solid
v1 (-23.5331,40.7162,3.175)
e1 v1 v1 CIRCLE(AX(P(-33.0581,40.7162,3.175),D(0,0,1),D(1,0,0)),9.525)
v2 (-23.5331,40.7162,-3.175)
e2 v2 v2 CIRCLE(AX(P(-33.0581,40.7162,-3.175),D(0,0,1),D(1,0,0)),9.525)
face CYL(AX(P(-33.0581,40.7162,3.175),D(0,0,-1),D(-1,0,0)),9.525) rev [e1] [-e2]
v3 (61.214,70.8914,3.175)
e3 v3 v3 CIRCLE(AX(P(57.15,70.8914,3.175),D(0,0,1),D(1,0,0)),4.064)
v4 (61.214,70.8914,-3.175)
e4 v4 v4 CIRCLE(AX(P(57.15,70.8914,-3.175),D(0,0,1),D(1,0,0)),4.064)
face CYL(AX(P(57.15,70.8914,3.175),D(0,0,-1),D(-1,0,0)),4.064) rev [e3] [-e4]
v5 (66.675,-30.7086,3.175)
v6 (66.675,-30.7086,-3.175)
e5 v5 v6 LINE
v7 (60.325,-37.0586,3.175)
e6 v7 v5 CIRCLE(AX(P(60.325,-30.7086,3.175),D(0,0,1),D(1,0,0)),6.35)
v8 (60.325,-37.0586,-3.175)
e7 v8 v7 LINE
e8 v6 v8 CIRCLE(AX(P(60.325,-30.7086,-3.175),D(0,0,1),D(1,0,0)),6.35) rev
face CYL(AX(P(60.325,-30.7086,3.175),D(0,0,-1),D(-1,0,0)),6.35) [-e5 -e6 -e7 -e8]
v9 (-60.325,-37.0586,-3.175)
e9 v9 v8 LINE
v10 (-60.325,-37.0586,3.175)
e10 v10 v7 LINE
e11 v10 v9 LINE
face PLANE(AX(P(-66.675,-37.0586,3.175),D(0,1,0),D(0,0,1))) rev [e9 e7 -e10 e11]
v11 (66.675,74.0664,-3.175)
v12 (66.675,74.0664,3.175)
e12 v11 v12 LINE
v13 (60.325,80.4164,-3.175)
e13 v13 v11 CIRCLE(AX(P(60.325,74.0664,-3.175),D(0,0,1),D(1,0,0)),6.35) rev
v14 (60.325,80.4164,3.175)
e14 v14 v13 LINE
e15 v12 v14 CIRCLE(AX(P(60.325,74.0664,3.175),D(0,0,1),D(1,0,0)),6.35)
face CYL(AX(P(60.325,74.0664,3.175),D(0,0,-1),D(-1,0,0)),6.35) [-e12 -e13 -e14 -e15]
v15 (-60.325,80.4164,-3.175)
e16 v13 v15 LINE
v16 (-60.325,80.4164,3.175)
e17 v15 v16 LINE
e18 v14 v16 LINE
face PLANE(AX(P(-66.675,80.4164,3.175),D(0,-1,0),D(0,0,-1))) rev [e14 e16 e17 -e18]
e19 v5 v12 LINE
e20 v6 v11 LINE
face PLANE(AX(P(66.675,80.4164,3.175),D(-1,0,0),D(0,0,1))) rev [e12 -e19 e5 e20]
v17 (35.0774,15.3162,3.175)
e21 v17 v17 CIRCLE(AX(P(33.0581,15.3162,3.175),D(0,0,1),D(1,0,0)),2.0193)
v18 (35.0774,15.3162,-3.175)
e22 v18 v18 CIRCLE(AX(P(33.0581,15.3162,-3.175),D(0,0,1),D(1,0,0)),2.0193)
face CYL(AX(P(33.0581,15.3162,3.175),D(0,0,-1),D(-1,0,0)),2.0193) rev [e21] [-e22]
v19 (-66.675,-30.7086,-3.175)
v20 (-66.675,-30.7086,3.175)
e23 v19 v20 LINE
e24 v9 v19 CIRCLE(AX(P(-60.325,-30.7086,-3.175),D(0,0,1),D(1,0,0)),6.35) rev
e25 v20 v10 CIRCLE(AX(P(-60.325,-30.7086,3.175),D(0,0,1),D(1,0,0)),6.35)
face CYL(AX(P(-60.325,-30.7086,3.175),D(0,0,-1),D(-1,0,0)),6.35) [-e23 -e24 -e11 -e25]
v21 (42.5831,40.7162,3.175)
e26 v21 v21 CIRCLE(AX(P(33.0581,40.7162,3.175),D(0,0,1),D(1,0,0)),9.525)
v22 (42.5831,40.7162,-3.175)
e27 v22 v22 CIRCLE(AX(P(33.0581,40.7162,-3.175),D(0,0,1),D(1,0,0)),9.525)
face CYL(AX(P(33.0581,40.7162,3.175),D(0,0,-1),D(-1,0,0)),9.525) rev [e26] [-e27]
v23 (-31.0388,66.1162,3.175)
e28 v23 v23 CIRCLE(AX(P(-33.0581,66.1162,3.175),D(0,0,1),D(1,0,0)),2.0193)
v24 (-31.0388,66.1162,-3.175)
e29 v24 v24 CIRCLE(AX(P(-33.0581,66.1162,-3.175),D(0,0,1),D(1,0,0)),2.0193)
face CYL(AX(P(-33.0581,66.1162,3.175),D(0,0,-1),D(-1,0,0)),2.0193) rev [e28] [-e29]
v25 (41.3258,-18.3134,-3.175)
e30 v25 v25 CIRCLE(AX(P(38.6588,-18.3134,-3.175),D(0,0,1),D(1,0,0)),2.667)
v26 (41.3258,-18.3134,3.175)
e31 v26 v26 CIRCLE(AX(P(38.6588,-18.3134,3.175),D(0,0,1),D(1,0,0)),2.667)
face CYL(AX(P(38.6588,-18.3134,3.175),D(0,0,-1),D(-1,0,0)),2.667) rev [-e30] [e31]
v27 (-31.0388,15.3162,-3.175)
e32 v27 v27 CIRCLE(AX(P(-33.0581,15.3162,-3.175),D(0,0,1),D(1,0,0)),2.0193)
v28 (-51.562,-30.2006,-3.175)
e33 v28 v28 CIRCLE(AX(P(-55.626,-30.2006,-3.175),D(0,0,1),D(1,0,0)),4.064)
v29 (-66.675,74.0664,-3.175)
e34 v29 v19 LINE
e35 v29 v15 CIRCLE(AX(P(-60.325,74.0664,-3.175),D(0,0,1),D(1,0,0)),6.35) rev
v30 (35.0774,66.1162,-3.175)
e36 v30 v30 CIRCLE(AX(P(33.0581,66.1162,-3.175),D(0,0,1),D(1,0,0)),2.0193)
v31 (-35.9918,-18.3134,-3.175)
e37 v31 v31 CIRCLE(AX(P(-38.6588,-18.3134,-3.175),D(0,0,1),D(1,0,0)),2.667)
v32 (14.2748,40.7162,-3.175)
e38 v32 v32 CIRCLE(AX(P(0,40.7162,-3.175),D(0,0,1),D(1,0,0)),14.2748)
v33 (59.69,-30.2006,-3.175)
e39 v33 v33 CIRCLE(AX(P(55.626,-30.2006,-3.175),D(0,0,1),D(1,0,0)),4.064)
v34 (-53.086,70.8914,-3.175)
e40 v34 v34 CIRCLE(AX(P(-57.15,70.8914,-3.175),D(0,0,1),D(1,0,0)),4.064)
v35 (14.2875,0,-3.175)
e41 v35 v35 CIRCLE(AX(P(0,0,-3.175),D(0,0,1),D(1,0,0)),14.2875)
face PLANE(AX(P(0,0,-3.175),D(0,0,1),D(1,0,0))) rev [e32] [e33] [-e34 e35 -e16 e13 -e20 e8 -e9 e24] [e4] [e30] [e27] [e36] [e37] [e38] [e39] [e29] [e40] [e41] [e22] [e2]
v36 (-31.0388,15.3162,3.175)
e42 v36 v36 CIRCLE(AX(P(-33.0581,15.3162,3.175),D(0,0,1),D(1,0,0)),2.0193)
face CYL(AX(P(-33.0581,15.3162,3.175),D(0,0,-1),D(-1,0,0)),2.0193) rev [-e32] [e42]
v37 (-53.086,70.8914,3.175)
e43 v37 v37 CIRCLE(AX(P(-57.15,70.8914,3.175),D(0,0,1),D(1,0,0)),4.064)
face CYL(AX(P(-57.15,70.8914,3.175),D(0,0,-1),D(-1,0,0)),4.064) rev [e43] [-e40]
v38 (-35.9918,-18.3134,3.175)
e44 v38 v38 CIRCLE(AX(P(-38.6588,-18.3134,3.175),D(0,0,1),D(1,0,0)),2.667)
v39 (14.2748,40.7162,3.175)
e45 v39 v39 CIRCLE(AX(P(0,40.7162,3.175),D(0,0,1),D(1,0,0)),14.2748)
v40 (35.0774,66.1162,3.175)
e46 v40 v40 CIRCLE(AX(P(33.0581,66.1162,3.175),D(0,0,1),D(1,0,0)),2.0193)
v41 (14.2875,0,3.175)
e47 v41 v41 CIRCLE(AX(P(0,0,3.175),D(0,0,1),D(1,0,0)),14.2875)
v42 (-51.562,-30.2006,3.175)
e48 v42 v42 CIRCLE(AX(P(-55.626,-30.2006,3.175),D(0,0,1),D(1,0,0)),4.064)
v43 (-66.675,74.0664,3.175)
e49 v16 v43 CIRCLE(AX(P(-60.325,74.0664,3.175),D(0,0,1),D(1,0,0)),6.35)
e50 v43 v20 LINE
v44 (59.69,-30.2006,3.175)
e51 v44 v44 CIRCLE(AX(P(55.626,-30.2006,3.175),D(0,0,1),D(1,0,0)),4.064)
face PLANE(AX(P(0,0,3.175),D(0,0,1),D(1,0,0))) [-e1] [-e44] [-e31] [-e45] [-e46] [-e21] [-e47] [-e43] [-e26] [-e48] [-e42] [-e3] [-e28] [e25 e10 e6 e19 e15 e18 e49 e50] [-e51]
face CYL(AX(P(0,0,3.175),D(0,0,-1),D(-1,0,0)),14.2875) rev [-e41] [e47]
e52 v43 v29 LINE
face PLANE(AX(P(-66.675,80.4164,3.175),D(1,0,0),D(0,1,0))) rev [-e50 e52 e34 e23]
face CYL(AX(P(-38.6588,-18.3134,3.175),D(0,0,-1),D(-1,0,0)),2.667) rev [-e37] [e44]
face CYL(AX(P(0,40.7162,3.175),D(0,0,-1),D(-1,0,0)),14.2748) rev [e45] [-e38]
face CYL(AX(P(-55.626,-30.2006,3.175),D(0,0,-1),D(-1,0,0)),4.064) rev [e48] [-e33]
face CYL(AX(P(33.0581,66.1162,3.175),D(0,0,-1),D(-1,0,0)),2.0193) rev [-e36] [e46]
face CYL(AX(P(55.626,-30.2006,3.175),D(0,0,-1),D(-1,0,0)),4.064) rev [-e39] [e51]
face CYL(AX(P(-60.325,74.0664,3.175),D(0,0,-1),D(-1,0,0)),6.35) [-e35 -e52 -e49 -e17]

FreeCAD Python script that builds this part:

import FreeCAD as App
import Part
import Sketcher
Q = App.Units.Quantity


def edges_at(feature, points):
    """Names of the edges that pass closest to the given points."""
    edges = feature.Shape.Edges
    near = lambda p: min(range(len(edges)), key=lambda i: edges[i].distToShape(Part.Vertex(*p))[0])
    return sorted({f"Edge{near(p) + 1}" for p in points})

doc = App.newDocument("Part")
body = doc.addObject("PartDesign::Body", "Body")

sketch1 = body.newObject("Sketcher::SketchObject", "Sketch")
sketch1.AttachmentSupport = (doc.getObject("XY_Plane"), [""])
sketch1.MapMode = "FlatFace"
sketch1.addGeometry([
    Part.LineSegment(App.Vector(-66.7, 80.4, 0), App.Vector(-66.7, -37.1, 0)),
    Part.LineSegment(App.Vector(-66.7, -37.1, 0), App.Vector(66.7, -37.1, 0)),
    Part.LineSegment(App.Vector(66.7, -37.1, 0), App.Vector(66.7, 80.4, 0)),
    Part.LineSegment(App.Vector(66.7, 80.4, 0), App.Vector(-66.7, 80.4, 0)),
    Part.Circle(App.Vector(-55.6, -30.2, 0), App.Vector(0, 0, 1), 4.1),
    Part.Circle(App.Vector(-38.7, -18.3, 0), App.Vector(0, 0, 1), 2.7),
    Part.Circle(App.Vector(-33.1, 15.3, 0), App.Vector(0, 0, 1), 2),
    Part.Circle(App.Vector(55.6, -30.2, 0), App.Vector(0, 0, 1), 4.1),
    Part.Circle(App.Vector(38.7, -18.3, 0), App.Vector(0, 0, 1), 2.7),
    Part.Circle(App.Vector(0, 0, 0), App.Vector(0, 0, 1), 14.3),
    Part.Circle(App.Vector(33.1, 15.3, 0), App.Vector(0, 0, 1), 2),
    Part.Circle(App.Vector(-33.1, 40.7, 0), App.Vector(0, 0, 1), 9.5),
    Part.Circle(App.Vector(-57.1, 70.9, 0), App.Vector(0, 0, 1), 4.1),
    Part.Circle(App.Vector(-33.1, 66.1, 0), App.Vector(0, 0, 1), 2),
    Part.Circle(App.Vector(0, 40.7, 0), App.Vector(0, 0, 1), 14.3),
    Part.Circle(App.Vector(33.1, 40.7, 0), App.Vector(0, 0, 1), 9.5),
    Part.Circle(App.Vector(33.1, 66.1, 0), App.Vector(0, 0, 1), 2),
    Part.Circle(App.Vector(57.1, 70.9, 0), App.Vector(0, 0, 1), 4.1),
], False)
sketch1.addConstraint([
    Sketcher.Constraint("Coincident", 0, 2, 1, 1),
    Sketcher.Constraint("Coincident", 1, 2, 2, 1),
    Sketcher.Constraint("Coincident", 2, 2, 3, 1),
    Sketcher.Constraint("Coincident", 3, 2, 0, 1),
    Sketcher.Constraint("Vertical", 0),
    Sketcher.Constraint("Horizontal", 1),
    Sketcher.Constraint("Vertical", 2),
    Sketcher.Constraint("Horizontal", 3),
    Sketcher.Constraint("Coincident", 9, 3, -1, 1),
    Sketcher.Constraint("Equal", 4, 7),
    Sketcher.Constraint("Equal", 5, 8),
    Sketcher.Constraint("Equal", 6, 10),
    Sketcher.Constraint("Equal", 7, 12),
    Sketcher.Constraint("Equal", 10, 13),
    Sketcher.Constraint("Equal", 11, 15),
    Sketcher.Constraint("Equal", 13, 16),
    Sketcher.Constraint("Equal", 12, 17),
    Sketcher.Constraint("Symmetric", 4, 3, 7, 3, -2),
    Sketcher.Constraint("Symmetric", 5, 3, 8, 3, -2),
    Sketcher.Constraint("Symmetric", 6, 3, 10, 3, -2),
    Sketcher.Constraint("Symmetric", 11, 3, 15, 3, -2),
    Sketcher.Constraint("Symmetric", 13, 3, 16, 3, -2),
    Sketcher.Constraint("Symmetric", 12, 3, 17, 3, -2),
    Sketcher.Constraint("PointOnObject", 14, 3, -2),
    Sketcher.Constraint("Horizontal", 11, 3, 14, 3),
    Sketcher.Constraint("Vertical", 6, 3, 11, 3),
    Sketcher.Constraint("Vertical", 11, 3, 13, 3),
    Sketcher.Constraint("Diameter", 4, Q("0.32 in")),
    Sketcher.Constraint("Diameter", 5, Q("0.21 in")),
    Sketcher.Constraint("Diameter", 11, Q("0.75 in")),
    Sketcher.Constraint("Diameter", 6, Q("0.159 in")),
    Sketcher.Constraint("Diameter", 9, Q("1.125 in")),
    Sketcher.Constraint("Diameter", 14, Q("1.124 in")),
    Sketcher.Constraint("DistanceY", 6, 3, 11, 3, Q("1 in")),
    Sketcher.Constraint("DistanceY", 11, 3, 13, 3, Q("1 in")),
    Sketcher.Constraint("DistanceX", 1, 1, 1, 2, Q("5.25 in")),
    Sketcher.Constraint("DistanceY", 0, 2, 0, 1, Q("4.625 in")),
    Sketcher.Constraint("DistanceX", 4, 3, -1, 1, Q("2.19 in")),
    Sketcher.Constraint("DistanceX", 12, 3, -1, 1, Q("2.25 in")),
    Sketcher.Constraint("DistanceY", 4, 3, 12, 3, Q("3.98 in")),
    Sketcher.Constraint("DistanceY", 0, 2, 4, 3, Q("0.27 in")),
    Sketcher.Constraint("DistanceY", 4, 3, -1, 1, Q("1.189 in")),
    Sketcher.Constraint("DistanceX", 5, 3, -1, 1, Q("1.522 in")),
    Sketcher.Constraint("DistanceY", 5, 3, -1, 1, Q("0.721 in")),
    Sketcher.Constraint("DistanceY", -1, 1, 6, 3, Q("0.603 in")),
    Sketcher.Constraint("DistanceX", 0, 2, -1, 1, Q("2.625 in")),
    Sketcher.Constraint("DistanceX", 6, 3, 10, 3, Q("2.603 in")),
])
pad1 = body.newObject("PartDesign::Pad", "Pad")
pad1.Profile = sketch1
pad1.Length = Q("0.25 in")
pad1.Midplane = True
doc.recompute()

fillet = body.newObject("PartDesign::Fillet", "Fillet")
fillet.Base = (pad1, edges_at(pad1, [
    (66.675, -37.059, 0),
    (-66.675, -37.059, 0),
    (-66.675, 80.416, 0),
    (66.675, 80.416, 0),
]))
fillet.Radius = Q("0.25 in")

doc.recompute()
